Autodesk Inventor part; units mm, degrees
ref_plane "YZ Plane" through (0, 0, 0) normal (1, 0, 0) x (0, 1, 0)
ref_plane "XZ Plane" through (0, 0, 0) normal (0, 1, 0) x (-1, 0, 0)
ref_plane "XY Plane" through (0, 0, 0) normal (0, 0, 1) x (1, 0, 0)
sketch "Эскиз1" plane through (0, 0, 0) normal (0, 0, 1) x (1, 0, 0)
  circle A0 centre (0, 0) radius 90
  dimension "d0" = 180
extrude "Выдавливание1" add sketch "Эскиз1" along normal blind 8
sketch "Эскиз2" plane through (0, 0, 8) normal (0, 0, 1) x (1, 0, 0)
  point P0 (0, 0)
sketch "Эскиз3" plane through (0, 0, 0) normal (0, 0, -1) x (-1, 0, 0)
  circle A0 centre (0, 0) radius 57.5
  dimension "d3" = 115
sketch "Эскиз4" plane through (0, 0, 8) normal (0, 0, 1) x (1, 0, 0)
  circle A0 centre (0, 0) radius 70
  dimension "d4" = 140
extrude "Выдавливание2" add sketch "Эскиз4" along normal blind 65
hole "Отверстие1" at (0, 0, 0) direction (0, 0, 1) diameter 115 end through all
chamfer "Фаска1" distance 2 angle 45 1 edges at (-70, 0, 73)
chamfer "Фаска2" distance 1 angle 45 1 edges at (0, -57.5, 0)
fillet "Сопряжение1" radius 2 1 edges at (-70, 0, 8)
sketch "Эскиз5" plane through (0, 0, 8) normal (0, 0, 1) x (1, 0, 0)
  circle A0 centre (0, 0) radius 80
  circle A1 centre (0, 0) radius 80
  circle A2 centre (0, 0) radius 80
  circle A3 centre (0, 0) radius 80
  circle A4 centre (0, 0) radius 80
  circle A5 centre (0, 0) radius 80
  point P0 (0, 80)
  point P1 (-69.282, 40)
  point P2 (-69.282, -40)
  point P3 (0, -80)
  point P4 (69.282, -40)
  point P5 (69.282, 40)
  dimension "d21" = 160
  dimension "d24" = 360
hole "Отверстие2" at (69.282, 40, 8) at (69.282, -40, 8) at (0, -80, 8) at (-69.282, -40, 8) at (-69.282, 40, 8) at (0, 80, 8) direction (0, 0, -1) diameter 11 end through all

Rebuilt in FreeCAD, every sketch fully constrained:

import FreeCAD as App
import Part
import Sketcher


def edges_at(feature, points):
    """Names of the edges that pass closest to the given points."""
    edges = feature.Shape.Edges
    near = lambda p: min(range(len(edges)), key=lambda i: edges[i].distToShape(Part.Vertex(*p))[0])
    return sorted({f"Edge{near(p) + 1}" for p in points})

doc = App.newDocument("Part")
params = doc.addObject("Spreadsheet::Sheet", "Params")
for row, (alias, value) in enumerate([
    ("sketch1_diameter", "180 mm"),
    ("pad1_length", "8 mm"),
    ("sketch2_diameter", "140 mm"),
    ("pad2_length", "65 mm"),
    ("sketch3_diameter", "115 mm"),
    ("hole_diameter", "115 mm"),
    ("chamfer_size", "2 mm"),
    ("chamfer2_size", "1 mm"),
    ("fillet_radius", "2 mm"),
    ("sketch4_diameter", "11 mm"),
    ("hole2_diameter", "11 mm"),
], start=1):
    params.set(f"A{row}", alias)
    params.set(f"B{row}", "=" + value)
    params.setAlias(f"B{row}", alias)

body = doc.addObject("PartDesign::Body", "Body")

sketch1 = body.newObject("Sketcher::SketchObject", "Sketch")
sketch1.AttachmentSupport = (doc.getObject("XY_Plane"), [""])
sketch1.MapMode = "FlatFace"
sketch1.addGeometry(Part.Circle(App.Vector(0, 0, 0), App.Vector(0, 0, 1), 90), False)
sketch1.addConstraint([
    Sketcher.Constraint("Coincident", 0, 3, -1, 1),
    Sketcher.Constraint("Diameter", 0, 180.0),
])
sketch1.setExpression("Constraints[1]", "Params.sketch1_diameter")
pad1 = body.newObject("PartDesign::Pad", "Pad")
pad1.Profile = sketch1
pad1.setExpression("Length", "Params.pad1_length")

sketch2 = body.newObject("Sketcher::SketchObject", "Sketch001")
sketch2.AttachmentSupport = (doc.getObject("XY_Plane"), [""])
sketch2.MapMode = "FlatFace"
sketch2.AttachmentOffset = App.Placement(App.Vector(0, 0, 8), App.Rotation())
sketch2.addGeometry(Part.Circle(App.Vector(0, 0, 0), App.Vector(0, 0, 1), 70), False)
sketch2.addConstraint([
    Sketcher.Constraint("Coincident", 0, 3, -1, 1),
    Sketcher.Constraint("Diameter", 0, 140.0),
])
sketch2.setExpression("Constraints[1]", "Params.sketch2_diameter")
pad2 = body.newObject("PartDesign::Pad", "Pad001")
pad2.Profile = sketch2
pad2.setExpression("Length", "Params.pad2_length")

sketch3 = body.newObject("Sketcher::SketchObject", "Sketch002")
sketch3.AttachmentSupport = (doc.getObject("XY_Plane"), [""])
sketch3.MapMode = "FlatFace"
sketch3.addGeometry(Part.Circle(App.Vector(0, 0, 0), App.Vector(0, 0, 1), 58), False)
sketch3.addConstraint([
    Sketcher.Constraint("Coincident", 0, 3, -1, 1),
    Sketcher.Constraint("Diameter", 0, 115.0),
])
sketch3.setExpression("Constraints[1]", "Params.sketch3_diameter")
doc.recompute()
hole = body.newObject("PartDesign::Hole", "Hole")
hole.Profile = sketch3
hole.ThreadType = "None"
hole.setExpression("Diameter", "Params.hole_diameter")
hole.DepthType = "ThroughAll"
hole.Reversed = True
doc.recompute()

chamfer = body.newObject("PartDesign::Chamfer", "Chamfer")
chamfer.Base = (hole, edges_at(hole, [(-70, 0, 73)]))
chamfer.setExpression("Size", "Params.chamfer_size")
doc.recompute()

chamfer2 = body.newObject("PartDesign::Chamfer", "Chamfer001")
chamfer2.Base = (chamfer, edges_at(chamfer, [(0, -57.5, 0)]))
chamfer2.setExpression("Size", "Params.chamfer2_size")
doc.recompute()

fillet = body.newObject("PartDesign::Fillet", "Fillet")
fillet.Base = (chamfer2, edges_at(chamfer2, [(-70, 0, 8)]))
fillet.setExpression("Radius", "Params.fillet_radius")

sketch4 = body.newObject("Sketcher::SketchObject", "Sketch003")
sketch4.AttachmentSupport = (doc.getObject("XY_Plane"), [""])
sketch4.MapMode = "FlatFace"
sketch4.AttachmentOffset = App.Placement(App.Vector(0, 0, 8), App.Rotation())
sketch4.addGeometry([
    Part.Circle(App.Vector(69, 40, 0), App.Vector(0, 0, 1), 6),
    Part.Circle(App.Vector(69, -40, 0), App.Vector(0, 0, 1), 6),
    Part.Circle(App.Vector(0, -80, 0), App.Vector(0, 0, 1), 6),
    Part.Circle(App.Vector(-69, -40, 0), App.Vector(0, 0, 1), 6),
    Part.Circle(App.Vector(-69, 40, 0), App.Vector(0, 0, 1), 6),
    Part.Circle(App.Vector(0, 80, 0), App.Vector(0, 0, 1), 6),
], False)
sketch4.addConstraint([
    Sketcher.Constraint("Equal", 0, 1),
    Sketcher.Constraint("Equal", 1, 2),
    Sketcher.Constraint("Equal", 2, 3),
    Sketcher.Constraint("Equal", 3, 4),
    Sketcher.Constraint("Equal", 4, 5),
    Sketcher.Constraint("Symmetric", 0, 3, 3, 3, -1, 1),
    Sketcher.Constraint("Symmetric", 1, 3, 4, 3, -1, 1),
    Sketcher.Constraint("Symmetric", 2, 3, 5, 3, -1, 1),
    Sketcher.Constraint("Symmetric", 1, 3, 3, 3, -2),
    Sketcher.Constraint("PointOnObject", 2, 3, -2),
    Sketcher.Constraint("Diameter", 0, 11.0),
    Sketcher.Constraint("DistanceY", -1, 1, 0, 3, 40.0),
    Sketcher.Constraint("DistanceY", 2, 3, -1, 1, 80.0),
    Sketcher.Constraint("DistanceX", -1, 1, 0, 3, 69.282),
])
sketch4.setExpression("Constraints[10]", "Params.sketch4_diameter")
doc.recompute()
hole2 = body.newObject("PartDesign::Hole", "Hole001")
hole2.Profile = sketch4
hole2.ThreadType = "None"
hole2.setExpression("Diameter", "Params.hole2_diameter")
hole2.DepthType = "ThroughAll"

doc.recompute()
